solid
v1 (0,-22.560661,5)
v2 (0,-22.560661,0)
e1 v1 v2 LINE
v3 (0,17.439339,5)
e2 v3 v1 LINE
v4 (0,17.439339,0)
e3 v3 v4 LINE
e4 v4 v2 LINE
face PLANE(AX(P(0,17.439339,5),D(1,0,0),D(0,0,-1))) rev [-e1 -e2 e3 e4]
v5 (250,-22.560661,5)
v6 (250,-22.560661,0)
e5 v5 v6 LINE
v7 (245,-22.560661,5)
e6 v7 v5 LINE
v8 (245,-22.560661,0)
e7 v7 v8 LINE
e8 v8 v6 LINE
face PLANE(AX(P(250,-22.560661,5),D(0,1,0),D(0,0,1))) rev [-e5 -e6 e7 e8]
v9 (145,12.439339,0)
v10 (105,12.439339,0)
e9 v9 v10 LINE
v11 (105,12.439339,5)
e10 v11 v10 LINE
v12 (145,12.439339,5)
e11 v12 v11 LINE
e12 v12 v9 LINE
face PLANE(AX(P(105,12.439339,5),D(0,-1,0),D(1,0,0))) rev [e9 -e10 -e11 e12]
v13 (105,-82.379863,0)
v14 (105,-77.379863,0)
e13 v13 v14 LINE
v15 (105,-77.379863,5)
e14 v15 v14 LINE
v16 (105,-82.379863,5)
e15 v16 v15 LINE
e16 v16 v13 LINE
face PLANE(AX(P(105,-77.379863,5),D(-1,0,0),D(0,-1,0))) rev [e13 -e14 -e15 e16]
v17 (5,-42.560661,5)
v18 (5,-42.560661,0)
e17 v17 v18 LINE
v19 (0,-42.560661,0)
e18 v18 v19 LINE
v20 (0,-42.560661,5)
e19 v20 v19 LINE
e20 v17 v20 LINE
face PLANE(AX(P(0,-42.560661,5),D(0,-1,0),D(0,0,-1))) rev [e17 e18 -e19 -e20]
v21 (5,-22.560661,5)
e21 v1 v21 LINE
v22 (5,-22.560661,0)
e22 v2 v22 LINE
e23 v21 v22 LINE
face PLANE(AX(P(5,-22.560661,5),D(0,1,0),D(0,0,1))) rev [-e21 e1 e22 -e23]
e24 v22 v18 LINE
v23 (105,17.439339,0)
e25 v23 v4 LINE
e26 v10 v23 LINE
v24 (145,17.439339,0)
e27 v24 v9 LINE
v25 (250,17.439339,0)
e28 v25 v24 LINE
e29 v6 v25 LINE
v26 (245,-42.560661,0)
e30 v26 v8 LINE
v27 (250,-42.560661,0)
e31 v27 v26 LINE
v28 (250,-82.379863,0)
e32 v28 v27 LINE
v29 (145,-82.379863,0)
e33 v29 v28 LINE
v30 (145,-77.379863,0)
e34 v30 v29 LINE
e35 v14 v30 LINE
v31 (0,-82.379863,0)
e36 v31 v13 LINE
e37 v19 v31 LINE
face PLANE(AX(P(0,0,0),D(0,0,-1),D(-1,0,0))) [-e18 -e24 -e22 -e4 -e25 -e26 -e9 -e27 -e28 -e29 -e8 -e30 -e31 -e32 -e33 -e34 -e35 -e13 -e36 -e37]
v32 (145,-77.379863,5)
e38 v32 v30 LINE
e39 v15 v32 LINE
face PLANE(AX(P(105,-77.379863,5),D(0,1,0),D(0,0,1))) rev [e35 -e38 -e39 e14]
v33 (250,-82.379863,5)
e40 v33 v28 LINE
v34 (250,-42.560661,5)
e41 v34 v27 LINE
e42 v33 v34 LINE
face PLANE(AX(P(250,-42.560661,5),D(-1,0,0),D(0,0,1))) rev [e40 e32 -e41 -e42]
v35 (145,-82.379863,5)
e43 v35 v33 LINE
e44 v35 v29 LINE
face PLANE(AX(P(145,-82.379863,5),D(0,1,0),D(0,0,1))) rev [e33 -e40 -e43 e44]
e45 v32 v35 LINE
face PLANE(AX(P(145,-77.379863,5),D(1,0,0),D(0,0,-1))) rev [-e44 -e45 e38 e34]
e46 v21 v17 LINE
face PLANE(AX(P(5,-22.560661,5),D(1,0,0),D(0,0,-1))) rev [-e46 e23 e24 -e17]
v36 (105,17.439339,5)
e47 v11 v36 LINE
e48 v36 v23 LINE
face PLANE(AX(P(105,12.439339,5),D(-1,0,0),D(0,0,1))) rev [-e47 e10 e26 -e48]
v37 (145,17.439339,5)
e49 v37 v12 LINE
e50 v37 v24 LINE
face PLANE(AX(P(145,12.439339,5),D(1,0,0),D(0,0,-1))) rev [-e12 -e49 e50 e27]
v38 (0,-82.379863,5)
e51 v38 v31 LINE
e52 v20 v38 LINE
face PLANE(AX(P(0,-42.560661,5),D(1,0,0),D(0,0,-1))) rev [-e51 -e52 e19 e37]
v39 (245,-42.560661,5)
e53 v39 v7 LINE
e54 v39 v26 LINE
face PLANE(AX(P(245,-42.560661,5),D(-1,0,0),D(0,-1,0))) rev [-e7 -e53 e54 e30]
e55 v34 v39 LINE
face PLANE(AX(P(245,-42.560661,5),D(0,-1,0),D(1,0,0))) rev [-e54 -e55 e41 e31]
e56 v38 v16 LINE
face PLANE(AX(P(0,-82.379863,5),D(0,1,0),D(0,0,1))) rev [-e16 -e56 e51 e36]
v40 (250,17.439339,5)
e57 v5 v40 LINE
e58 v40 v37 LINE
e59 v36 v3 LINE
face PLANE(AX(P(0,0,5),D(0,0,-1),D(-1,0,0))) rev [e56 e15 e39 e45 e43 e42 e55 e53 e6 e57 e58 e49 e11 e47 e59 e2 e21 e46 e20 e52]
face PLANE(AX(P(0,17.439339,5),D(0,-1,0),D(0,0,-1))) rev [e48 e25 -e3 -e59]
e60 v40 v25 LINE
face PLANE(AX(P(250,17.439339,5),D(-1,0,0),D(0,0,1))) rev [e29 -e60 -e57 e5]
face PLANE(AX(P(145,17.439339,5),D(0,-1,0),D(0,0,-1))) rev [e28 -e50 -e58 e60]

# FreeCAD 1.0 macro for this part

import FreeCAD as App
import Part
import Sketcher
Q = App.Units.Quantity

doc = App.newDocument("Part")
params = doc.addObject("Spreadsheet::Sheet", "Params")
for row, (alias, value) in enumerate([
    ("sketch1_width", "105 mm"),
    ("sketch1_width2", "5 mm"),
    ("sketch1_width3", "40 mm"),
    ("sketch1_height", "20 mm"),
    ("pad1_length", "5 mm"),
], start=1):
    params.set(f"A{row}", alias)
    params.set(f"B{row}", "=" + value)
    params.setAlias(f"B{row}", alias)

body = doc.addObject("PartDesign::Body", "Body")

sketch1 = doc.addObject("Sketcher::SketchObject", "Sketch")
body.addObject(sketch1)
sketch1.AttachmentSupport = (doc.XY_Plane, [""])
sketch1.MapMode = "FlatFace"
sketch1.addGeometry(Part.LineSegment(App.Vector(105, 12, 0), App.Vector(105, 17, 0)), False)
sketch1.addGeometry(Part.LineSegment(App.Vector(105, 17, 0), App.Vector(0, 17, 0)), False)
sketch1.addGeometry(Part.LineSegment(App.Vector(0, 17, 0), App.Vector(0, -23, 0)), False)
sketch1.addGeometry(Part.LineSegment(App.Vector(0, -23, 0), App.Vector(5, -23, 0)), False)
sketch1.addGeometry(Part.LineSegment(App.Vector(5, -23, 0), App.Vector(5, -43, 0)), False)
sketch1.addGeometry(Part.LineSegment(App.Vector(5, -43, 0), App.Vector(0, -43, 0)), False)
sketch1.addGeometry(Part.LineSegment(App.Vector(0, -43, 0), App.Vector(0, -82, 0)), False)
sketch1.addGeometry(Part.LineSegment(App.Vector(0, -82, 0), App.Vector(105, -82, 0)), False)
sketch1.addGeometry(Part.LineSegment(App.Vector(105, -82, 0), App.Vector(105, -77, 0)), False)
sketch1.addGeometry(Part.LineSegment(App.Vector(105, -77, 0), App.Vector(145, -77, 0)), False)
sketch1.addGeometry(Part.LineSegment(App.Vector(145, -77, 0), App.Vector(145, -82, 0)), False)
sketch1.addGeometry(Part.LineSegment(App.Vector(145, -82, 0), App.Vector(250, -82, 0)), False)
sketch1.addGeometry(Part.LineSegment(App.Vector(250, -82, 0), App.Vector(250, -43, 0)), False)
sketch1.addGeometry(Part.LineSegment(App.Vector(250, -43, 0), App.Vector(245, -43, 0)), False)
sketch1.addGeometry(Part.LineSegment(App.Vector(245, -43, 0), App.Vector(245, -23, 0)), False)
sketch1.addGeometry(Part.LineSegment(App.Vector(245, -23, 0), App.Vector(250, -23, 0)), False)
sketch1.addGeometry(Part.LineSegment(App.Vector(250, -23, 0), App.Vector(250, 17, 0)), False)
sketch1.addGeometry(Part.LineSegment(App.Vector(250, 17, 0), App.Vector(145, 17, 0)), False)
sketch1.addGeometry(Part.LineSegment(App.Vector(145, 17, 0), App.Vector(145, 12, 0)), False)
sketch1.addGeometry(Part.LineSegment(App.Vector(145, 12, 0), App.Vector(105, 12, 0)), False)
sketch1.addConstraint(Sketcher.Constraint("Coincident", 0, 2, 1, 1))
sketch1.addConstraint(Sketcher.Constraint("Coincident", 1, 2, 2, 1))
sketch1.addConstraint(Sketcher.Constraint("Coincident", 2, 2, 3, 1))
sketch1.addConstraint(Sketcher.Constraint("Coincident", 3, 2, 4, 1))
sketch1.addConstraint(Sketcher.Constraint("Coincident", 4, 2, 5, 1))
sketch1.addConstraint(Sketcher.Constraint("Coincident", 5, 2, 6, 1))
sketch1.addConstraint(Sketcher.Constraint("Coincident", 6, 2, 7, 1))
sketch1.addConstraint(Sketcher.Constraint("Coincident", 7, 2, 8, 1))
sketch1.addConstraint(Sketcher.Constraint("Coincident", 8, 2, 9, 1))
sketch1.addConstraint(Sketcher.Constraint("Coincident", 9, 2, 10, 1))
sketch1.addConstraint(Sketcher.Constraint("Coincident", 10, 2, 11, 1))
sketch1.addConstraint(Sketcher.Constraint("Coincident", 11, 2, 12, 1))
sketch1.addConstraint(Sketcher.Constraint("Coincident", 12, 2, 13, 1))
sketch1.addConstraint(Sketcher.Constraint("Coincident", 13, 2, 14, 1))
sketch1.addConstraint(Sketcher.Constraint("Coincident", 14, 2, 15, 1))
sketch1.addConstraint(Sketcher.Constraint("Coincident", 15, 2, 16, 1))
sketch1.addConstraint(Sketcher.Constraint("Coincident", 16, 2, 17, 1))
sketch1.addConstraint(Sketcher.Constraint("Coincident", 17, 2, 18, 1))
sketch1.addConstraint(Sketcher.Constraint("Coincident", 18, 2, 19, 1))
sketch1.addConstraint(Sketcher.Constraint("Coincident", 19, 2, 0, 1))
sketch1.addConstraint(Sketcher.Constraint("Vertical", 0))
sketch1.addConstraint(Sketcher.Constraint("Horizontal", 1))
sketch1.addConstraint(Sketcher.Constraint("Vertical", 2))
sketch1.addConstraint(Sketcher.Constraint("Horizontal", 3))
sketch1.addConstraint(Sketcher.Constraint("Vertical", 4))
sketch1.addConstraint(Sketcher.Constraint("Horizontal", 5))
sketch1.addConstraint(Sketcher.Constraint("Vertical", 6))
sketch1.addConstraint(Sketcher.Constraint("Horizontal", 7))
sketch1.addConstraint(Sketcher.Constraint("Vertical", 8))
sketch1.addConstraint(Sketcher.Constraint("Horizontal", 9))
sketch1.addConstraint(Sketcher.Constraint("Vertical", 10))
sketch1.addConstraint(Sketcher.Constraint("Horizontal", 11))
sketch1.addConstraint(Sketcher.Constraint("Vertical", 12))
sketch1.addConstraint(Sketcher.Constraint("Horizontal", 13))
sketch1.addConstraint(Sketcher.Constraint("Vertical", 14))
sketch1.addConstraint(Sketcher.Constraint("Horizontal", 15))
sketch1.addConstraint(Sketcher.Constraint("Vertical", 16))
sketch1.addConstraint(Sketcher.Constraint("Horizontal", 17))
sketch1.addConstraint(Sketcher.Constraint("Vertical", 18))
sketch1.addConstraint(Sketcher.Constraint("Horizontal", 19))
sketch1.addConstraint(Sketcher.Constraint("PointOnObject", 1, 2, -2))
sketch1.addConstraint(Sketcher.Constraint("PointOnObject", 5, 2, -2))
sketch1.addConstraint(Sketcher.Constraint("Horizontal", 7, 2, 10, 2))
sketch1.addConstraint(Sketcher.Constraint("Horizontal", 5, 2, 12, 2))
sketch1.addConstraint(Sketcher.Constraint("Horizontal", 3, 2, 14, 2))
sketch1.addConstraint(Sketcher.Constraint("Horizontal", 1, 2, 16, 2))
sketch1.addConstraint(Sketcher.Constraint("Vertical", 0, 2, 7, 2))
sketch1.addConstraint(Sketcher.Constraint("Vertical", 12, 2, 15, 2))
sketch1.addConstraint(Sketcher.Constraint("Vertical", 10, 2, 17, 2))
sketch1.addConstraint(Sketcher.Constraint("Equal", 7, 11))
sketch1.addConstraint(Sketcher.Constraint("Equal", 5, 13))
sketch1.addConstraint(Sketcher.Constraint("Equal", 15, 0))
sketch1.addConstraint(Sketcher.Constraint("Equal", 19, 2))
sketch1.addConstraint(Sketcher.Constraint("Equal", 0, 8))
sketch1.addConstraint(Sketcher.Constraint("DistanceX", 1, 2, 1, 1, Q("105 mm")))
sketch1.addConstraint(Sketcher.Constraint("DistanceX", 3, 1, 3, 2, Q("5 mm")))
sketch1.addConstraint(Sketcher.Constraint("DistanceX", 9, 1, 9, 2, Q("40 mm")))
sketch1.addConstraint(Sketcher.Constraint("DistanceY", 4, 2, 4, 1, Q("20 mm")))
sketch1.addConstraint(Sketcher.Constraint("DistanceY", 6, 2, 6, 1, Q("39.819202 mm")))
sketch1.addConstraint(Sketcher.Constraint("DistanceY", -1, 1, 0, 2, Q("17.439339 mm")))
sketch1.setExpression("Constraints[54]", "Params.sketch1_width")
sketch1.setExpression("Constraints[55]", "Params.sketch1_width2")
sketch1.setExpression("Constraints[56]", "Params.sketch1_width3")
sketch1.setExpression("Constraints[57]", "Params.sketch1_height")
pad1 = doc.addObject("PartDesign::Pad", "Pad")
body.addObject(pad1)
pad1.Profile = sketch1
pad1.setExpression("Length", "Params.pad1_length")

doc.recompute()
